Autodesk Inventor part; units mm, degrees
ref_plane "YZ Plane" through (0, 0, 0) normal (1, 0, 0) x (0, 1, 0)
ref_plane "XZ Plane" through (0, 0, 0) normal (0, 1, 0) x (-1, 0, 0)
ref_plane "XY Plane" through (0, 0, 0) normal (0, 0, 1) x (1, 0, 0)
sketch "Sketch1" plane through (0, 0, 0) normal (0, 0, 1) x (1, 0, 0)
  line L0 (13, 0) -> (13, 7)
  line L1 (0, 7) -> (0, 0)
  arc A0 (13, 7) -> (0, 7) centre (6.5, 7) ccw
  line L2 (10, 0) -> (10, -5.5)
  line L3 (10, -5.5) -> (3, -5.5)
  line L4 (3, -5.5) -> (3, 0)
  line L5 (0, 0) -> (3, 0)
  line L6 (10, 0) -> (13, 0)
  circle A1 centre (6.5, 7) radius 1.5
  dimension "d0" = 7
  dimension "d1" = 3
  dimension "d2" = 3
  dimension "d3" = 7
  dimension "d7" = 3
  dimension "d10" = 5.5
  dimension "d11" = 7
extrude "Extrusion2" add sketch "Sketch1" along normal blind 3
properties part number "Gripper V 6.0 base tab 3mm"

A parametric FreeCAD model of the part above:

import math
import FreeCAD as App
import Part
import Sketcher

doc = App.newDocument("Part")
body = doc.addObject("PartDesign::Body", "Body")

# Sketch on XY plane
sketch1 = body.newObject("Sketcher::SketchObject", "Sketch")
sketch1.AttachmentSupport = (doc.getObject("XY_Plane"), [""])
sketch1.MapMode = "FlatFace"
sketch1.addGeometry(Part.LineSegment(App.Vector(10, 0, 0), App.Vector(13, 0, 0)), False)
sketch1.addGeometry(Part.LineSegment(App.Vector(13, 0, 0), App.Vector(13, 7, 0)), False)
sketch1.addGeometry(Part.ArcOfCircle(Part.Circle(App.Vector(6.5, 7, 0), App.Vector(0, 0, 1), 6.5), math.radians(0), math.radians(180)), False)
sketch1.addGeometry(Part.LineSegment(App.Vector(0, 7, 0), App.Vector(0, 0, 0)), False)
sketch1.addGeometry(Part.LineSegment(App.Vector(0, 0, 0), App.Vector(3, 0, 0)), False)
sketch1.addGeometry(Part.LineSegment(App.Vector(3, 0, 0), App.Vector(3, -5.5, 0)), False)
sketch1.addGeometry(Part.LineSegment(App.Vector(3, -5.5, 0), App.Vector(10, -5.5, 0)), False)
sketch1.addGeometry(Part.LineSegment(App.Vector(10, -5.5, 0), App.Vector(10, 0, 0)), False)
sketch1.addGeometry(Part.Circle(App.Vector(6.5, 7, 0), App.Vector(0, 0, 1), 1.5), False)
sketch1.addConstraint(Sketcher.Constraint("Coincident", 0, 2, 1, 1))
sketch1.addConstraint(Sketcher.Constraint("Tangent", 1, 2, 2, 1))
sketch1.addConstraint(Sketcher.Constraint("Tangent", 2, 2, 3, 1))
sketch1.addConstraint(Sketcher.Constraint("Coincident", 3, 2, 4, 1))
sketch1.addConstraint(Sketcher.Constraint("Coincident", 4, 2, 5, 1))
sketch1.addConstraint(Sketcher.Constraint("Coincident", 5, 2, 6, 1))
sketch1.addConstraint(Sketcher.Constraint("Coincident", 6, 2, 7, 1))
sketch1.addConstraint(Sketcher.Constraint("Coincident", 7, 2, 0, 1))
sketch1.addConstraint(Sketcher.Constraint("Horizontal", 0))
sketch1.addConstraint(Sketcher.Constraint("Vertical", 1))
sketch1.addConstraint(Sketcher.Constraint("Vertical", 3))
sketch1.addConstraint(Sketcher.Constraint("Horizontal", 4))
sketch1.addConstraint(Sketcher.Constraint("Vertical", 5))
sketch1.addConstraint(Sketcher.Constraint("Horizontal", 6))
sketch1.addConstraint(Sketcher.Constraint("Vertical", 7))
sketch1.addConstraint(Sketcher.Constraint("Coincident", 3, 2, -1, 1))
sketch1.addConstraint(Sketcher.Constraint("Coincident", 8, 3, 2, 3))
sketch1.addConstraint(Sketcher.Constraint("PointOnObject", 0, 2, -1))
sketch1.addConstraint(Sketcher.Constraint("Equal", 0, 4))
sketch1.addConstraint(Sketcher.Constraint("Equal", 6, 1))
sketch1.addConstraint(Sketcher.Constraint("Diameter", 8, 3.0))
sketch1.addConstraint(Sketcher.Constraint("DistanceX", 0, 1, 0, 2, 3.0))
sketch1.addConstraint(Sketcher.Constraint("DistanceX", 6, 1, 6, 2, 7.0))
sketch1.addConstraint(Sketcher.Constraint("DistanceY", 5, 2, 5, 1, 5.5))
pad1 = body.newObject("PartDesign::Pad", "Pad")
pad1.Profile = sketch1
pad1.Length = 3

doc.recompute()
